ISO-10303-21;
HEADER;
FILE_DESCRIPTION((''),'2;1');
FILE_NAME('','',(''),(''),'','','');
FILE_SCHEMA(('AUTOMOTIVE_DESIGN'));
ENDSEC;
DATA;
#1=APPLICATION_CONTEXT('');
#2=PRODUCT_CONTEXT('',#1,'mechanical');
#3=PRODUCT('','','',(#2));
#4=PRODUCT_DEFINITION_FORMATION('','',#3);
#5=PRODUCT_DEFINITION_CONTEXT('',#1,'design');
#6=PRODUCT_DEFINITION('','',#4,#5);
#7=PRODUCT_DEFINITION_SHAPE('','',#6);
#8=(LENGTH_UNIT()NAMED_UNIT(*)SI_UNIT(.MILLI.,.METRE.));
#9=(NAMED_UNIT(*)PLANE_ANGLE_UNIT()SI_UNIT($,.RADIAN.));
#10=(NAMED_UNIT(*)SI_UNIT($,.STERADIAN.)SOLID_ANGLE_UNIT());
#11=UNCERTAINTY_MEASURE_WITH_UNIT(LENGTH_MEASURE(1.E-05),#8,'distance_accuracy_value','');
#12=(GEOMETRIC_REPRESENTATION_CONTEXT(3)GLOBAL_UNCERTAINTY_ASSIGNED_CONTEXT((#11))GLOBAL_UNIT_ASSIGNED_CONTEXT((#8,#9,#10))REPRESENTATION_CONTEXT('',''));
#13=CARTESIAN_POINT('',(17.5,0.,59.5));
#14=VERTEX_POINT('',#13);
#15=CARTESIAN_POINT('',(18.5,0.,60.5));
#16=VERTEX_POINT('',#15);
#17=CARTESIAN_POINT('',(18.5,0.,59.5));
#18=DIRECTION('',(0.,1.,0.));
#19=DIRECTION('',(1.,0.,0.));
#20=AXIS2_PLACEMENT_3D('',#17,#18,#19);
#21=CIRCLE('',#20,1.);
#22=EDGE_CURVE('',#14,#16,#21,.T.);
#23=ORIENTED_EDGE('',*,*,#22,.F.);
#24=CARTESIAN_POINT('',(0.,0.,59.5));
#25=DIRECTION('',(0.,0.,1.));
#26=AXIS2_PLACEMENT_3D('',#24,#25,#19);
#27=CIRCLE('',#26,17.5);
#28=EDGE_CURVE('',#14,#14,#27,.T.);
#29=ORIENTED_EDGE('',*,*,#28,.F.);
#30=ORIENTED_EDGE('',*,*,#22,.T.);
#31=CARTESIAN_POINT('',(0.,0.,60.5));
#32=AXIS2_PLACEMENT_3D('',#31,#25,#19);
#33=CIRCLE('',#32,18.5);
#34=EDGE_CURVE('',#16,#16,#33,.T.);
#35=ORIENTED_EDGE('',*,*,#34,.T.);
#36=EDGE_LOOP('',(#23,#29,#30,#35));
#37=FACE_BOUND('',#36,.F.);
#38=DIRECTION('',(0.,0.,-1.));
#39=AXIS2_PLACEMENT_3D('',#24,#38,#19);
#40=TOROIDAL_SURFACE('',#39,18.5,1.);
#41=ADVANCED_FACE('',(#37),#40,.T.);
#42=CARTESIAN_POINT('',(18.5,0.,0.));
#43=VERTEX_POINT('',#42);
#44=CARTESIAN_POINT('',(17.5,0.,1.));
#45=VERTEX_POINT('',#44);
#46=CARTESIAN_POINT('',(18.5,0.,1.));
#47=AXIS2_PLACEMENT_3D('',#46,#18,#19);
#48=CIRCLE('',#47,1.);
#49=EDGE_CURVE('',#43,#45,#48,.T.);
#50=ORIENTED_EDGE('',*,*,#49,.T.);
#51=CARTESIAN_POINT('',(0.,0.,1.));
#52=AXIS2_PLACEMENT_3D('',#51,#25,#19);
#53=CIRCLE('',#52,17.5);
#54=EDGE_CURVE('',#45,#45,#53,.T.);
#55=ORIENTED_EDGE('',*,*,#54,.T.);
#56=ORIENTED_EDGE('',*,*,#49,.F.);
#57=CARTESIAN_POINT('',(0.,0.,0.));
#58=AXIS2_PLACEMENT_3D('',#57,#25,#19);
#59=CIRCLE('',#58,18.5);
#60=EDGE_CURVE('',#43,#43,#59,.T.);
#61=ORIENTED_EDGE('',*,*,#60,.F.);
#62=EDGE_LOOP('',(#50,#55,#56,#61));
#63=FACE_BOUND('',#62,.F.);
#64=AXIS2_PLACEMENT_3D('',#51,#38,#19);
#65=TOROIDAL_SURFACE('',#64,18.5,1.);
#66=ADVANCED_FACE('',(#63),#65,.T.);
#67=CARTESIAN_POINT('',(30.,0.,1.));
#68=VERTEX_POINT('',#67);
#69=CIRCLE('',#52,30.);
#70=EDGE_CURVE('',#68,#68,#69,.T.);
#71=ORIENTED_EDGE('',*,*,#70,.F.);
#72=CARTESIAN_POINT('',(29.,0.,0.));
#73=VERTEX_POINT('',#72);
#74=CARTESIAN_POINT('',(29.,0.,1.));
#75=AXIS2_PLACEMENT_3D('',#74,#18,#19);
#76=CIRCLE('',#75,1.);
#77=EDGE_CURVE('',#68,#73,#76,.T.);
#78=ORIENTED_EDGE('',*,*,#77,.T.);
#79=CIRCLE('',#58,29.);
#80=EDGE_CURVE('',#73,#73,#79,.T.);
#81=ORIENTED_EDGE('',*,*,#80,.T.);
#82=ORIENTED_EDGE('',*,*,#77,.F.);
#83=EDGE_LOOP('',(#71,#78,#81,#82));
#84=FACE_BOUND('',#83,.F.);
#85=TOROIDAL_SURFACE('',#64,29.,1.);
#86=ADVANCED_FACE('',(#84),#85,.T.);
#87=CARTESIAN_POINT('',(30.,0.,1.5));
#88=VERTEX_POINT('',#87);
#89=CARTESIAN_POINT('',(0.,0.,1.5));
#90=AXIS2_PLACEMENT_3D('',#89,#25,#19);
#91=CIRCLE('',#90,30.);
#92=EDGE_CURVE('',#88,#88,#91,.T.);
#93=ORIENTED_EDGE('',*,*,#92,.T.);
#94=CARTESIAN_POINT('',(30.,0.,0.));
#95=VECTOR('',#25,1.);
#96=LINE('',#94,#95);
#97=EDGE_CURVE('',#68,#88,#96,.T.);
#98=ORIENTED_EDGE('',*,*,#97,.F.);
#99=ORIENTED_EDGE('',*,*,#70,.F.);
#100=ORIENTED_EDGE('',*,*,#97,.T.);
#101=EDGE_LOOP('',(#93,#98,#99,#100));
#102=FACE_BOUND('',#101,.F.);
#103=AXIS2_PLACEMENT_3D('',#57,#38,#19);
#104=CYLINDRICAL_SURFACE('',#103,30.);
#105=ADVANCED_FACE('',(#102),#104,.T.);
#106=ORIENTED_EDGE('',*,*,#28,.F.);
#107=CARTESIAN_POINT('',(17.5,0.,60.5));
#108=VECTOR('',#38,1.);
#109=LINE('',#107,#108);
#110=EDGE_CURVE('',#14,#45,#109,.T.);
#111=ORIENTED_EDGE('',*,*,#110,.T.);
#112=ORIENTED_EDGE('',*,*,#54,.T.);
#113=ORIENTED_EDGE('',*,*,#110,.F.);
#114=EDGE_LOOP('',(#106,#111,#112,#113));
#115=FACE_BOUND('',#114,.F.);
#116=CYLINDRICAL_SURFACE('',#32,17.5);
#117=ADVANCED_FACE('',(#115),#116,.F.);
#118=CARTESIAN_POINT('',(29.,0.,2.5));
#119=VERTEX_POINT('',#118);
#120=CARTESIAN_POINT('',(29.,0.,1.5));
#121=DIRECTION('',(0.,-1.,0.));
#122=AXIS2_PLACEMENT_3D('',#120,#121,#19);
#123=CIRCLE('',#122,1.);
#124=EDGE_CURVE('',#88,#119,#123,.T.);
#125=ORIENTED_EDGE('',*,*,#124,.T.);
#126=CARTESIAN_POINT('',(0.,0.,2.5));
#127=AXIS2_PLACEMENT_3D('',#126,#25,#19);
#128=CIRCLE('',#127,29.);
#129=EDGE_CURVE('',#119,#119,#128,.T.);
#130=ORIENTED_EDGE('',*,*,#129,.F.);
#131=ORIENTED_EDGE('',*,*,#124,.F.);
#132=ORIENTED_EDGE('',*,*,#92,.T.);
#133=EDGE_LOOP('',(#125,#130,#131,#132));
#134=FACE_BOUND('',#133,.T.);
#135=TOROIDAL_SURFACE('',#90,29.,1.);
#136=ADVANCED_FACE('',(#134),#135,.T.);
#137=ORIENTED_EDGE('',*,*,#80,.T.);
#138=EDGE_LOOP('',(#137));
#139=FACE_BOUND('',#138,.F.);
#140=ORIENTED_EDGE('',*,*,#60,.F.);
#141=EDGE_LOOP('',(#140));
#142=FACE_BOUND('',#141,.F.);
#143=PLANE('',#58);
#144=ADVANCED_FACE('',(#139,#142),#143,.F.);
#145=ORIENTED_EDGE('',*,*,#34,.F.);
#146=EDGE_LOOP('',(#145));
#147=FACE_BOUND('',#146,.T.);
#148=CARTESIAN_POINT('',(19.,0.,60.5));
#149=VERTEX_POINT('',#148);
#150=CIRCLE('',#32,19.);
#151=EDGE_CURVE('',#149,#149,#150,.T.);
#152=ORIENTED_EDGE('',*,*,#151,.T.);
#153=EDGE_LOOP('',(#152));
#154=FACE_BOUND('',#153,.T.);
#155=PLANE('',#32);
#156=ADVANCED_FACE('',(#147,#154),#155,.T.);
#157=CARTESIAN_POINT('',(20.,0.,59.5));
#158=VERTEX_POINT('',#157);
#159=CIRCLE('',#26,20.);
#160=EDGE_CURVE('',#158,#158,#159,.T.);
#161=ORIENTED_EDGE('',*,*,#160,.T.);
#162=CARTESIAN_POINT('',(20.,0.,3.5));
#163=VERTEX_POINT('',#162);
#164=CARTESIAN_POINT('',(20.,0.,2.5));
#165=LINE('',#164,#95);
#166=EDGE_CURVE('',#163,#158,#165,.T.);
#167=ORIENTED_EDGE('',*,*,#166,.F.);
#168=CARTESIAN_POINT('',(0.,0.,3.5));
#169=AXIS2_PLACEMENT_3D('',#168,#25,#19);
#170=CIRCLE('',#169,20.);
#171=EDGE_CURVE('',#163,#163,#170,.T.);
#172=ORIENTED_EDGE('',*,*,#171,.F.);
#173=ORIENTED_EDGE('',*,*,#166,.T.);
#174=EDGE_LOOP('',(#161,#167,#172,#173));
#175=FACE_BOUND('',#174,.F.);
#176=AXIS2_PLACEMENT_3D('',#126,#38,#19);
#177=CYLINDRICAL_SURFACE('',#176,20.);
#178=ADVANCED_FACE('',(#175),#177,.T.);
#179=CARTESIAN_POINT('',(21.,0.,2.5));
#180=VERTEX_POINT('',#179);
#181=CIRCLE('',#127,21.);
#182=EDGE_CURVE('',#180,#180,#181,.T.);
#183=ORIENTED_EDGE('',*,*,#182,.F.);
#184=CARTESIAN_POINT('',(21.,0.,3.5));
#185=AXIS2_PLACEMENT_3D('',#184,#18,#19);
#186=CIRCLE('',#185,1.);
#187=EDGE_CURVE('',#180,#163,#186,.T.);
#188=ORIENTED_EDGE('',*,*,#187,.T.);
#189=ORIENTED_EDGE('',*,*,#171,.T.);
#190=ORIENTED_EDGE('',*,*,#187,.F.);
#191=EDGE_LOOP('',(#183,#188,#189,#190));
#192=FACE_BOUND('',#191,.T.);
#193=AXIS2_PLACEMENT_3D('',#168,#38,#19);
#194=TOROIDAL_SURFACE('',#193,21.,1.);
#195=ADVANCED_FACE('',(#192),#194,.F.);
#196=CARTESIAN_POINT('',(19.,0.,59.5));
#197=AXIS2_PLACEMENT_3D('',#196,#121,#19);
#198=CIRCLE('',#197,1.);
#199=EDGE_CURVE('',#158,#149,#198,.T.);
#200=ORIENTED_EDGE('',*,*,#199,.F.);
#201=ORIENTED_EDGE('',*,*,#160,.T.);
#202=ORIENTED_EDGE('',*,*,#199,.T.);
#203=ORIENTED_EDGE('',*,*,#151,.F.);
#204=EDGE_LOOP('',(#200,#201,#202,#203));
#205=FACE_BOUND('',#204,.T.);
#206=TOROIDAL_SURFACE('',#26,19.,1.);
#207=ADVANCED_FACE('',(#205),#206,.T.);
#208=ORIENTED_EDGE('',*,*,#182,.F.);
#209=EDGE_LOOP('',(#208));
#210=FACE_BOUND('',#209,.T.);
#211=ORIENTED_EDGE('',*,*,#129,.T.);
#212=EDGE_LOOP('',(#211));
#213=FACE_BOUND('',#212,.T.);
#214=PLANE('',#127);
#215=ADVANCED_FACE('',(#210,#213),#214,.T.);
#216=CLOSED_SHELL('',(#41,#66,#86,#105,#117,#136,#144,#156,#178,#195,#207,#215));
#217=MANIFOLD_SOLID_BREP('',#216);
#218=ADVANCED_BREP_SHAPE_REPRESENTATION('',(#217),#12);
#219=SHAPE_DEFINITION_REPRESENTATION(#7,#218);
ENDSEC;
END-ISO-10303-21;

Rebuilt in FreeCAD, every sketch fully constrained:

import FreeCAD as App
import Part
import Sketcher
from FreeCAD import Vector

doc = App.newDocument("Part")
body = doc.addObject("PartDesign::Body", "Body")

sketch1 = doc.addObject("Sketcher::SketchObject", "Sketch")
body.addObject(sketch1)
sketch1.AttachmentSupport = (doc.XY_Plane, [""])
sketch1.MapMode = "FlatFace"
sketch1.addGeometry(Part.Circle(Vector(0, 0, 0), Vector(0, 0, 1), 30), False)
sketch1.addConstraint(Sketcher.Constraint("Coincident", 0, 3, -1, 1))
sketch1.addConstraint(Sketcher.Constraint("Diameter", 0, 60.0))
pad1 = doc.addObject("PartDesign::Pad", "Pad")
body.addObject(pad1)
pad1.Profile = sketch1
pad1.Length = 2.5

sketch2 = doc.addObject("Sketcher::SketchObject", "Sketch001")
body.addObject(sketch2)
sketch2.AttachmentSupport = (doc.XY_Plane, [""])
sketch2.MapMode = "FlatFace"
sketch2.AttachmentOffset = App.Placement(Vector(0, 0, 2.5), App.Rotation())
sketch2.addGeometry(Part.Circle(Vector(0, 0, 0), Vector(0, 0, 1), 20), False)
sketch2.addConstraint(Sketcher.Constraint("Coincident", 0, 3, -1, 1))
sketch2.addConstraint(Sketcher.Constraint("Diameter", 0, 40.0))
pad2 = doc.addObject("PartDesign::Pad", "Pad001")
body.addObject(pad2)
pad2.Profile = sketch2
pad2.Length = 58

sketch3 = doc.addObject("Sketcher::SketchObject", "Sketch002")
body.addObject(sketch3)
sketch3.AttachmentSupport = (doc.XY_Plane, [""])
sketch3.MapMode = "FlatFace"
sketch3.AttachmentOffset = App.Placement(Vector(0, 0, 60.5), App.Rotation())
sketch3.addGeometry(Part.Circle(Vector(0, 0, 0), Vector(0, 0, 1), 18), False)
sketch3.addConstraint(Sketcher.Constraint("Coincident", 0, 3, -1, 1))
sketch3.addConstraint(Sketcher.Constraint("Diameter", 0, 35.0))
pocket1 = doc.addObject("PartDesign::Pocket", "Pocket")
body.addObject(pocket1)
pocket1.Profile = sketch3
pocket1.Type = "ThroughAll"
doc.recompute()

fillet = doc.addObject("PartDesign::Fillet", "Fillet")
body.addObject(fillet)
fillet.Base = (pocket1, ["Edge1"])
fillet.UseAllEdges = True
fillet.Radius = 1

doc.recompute()
